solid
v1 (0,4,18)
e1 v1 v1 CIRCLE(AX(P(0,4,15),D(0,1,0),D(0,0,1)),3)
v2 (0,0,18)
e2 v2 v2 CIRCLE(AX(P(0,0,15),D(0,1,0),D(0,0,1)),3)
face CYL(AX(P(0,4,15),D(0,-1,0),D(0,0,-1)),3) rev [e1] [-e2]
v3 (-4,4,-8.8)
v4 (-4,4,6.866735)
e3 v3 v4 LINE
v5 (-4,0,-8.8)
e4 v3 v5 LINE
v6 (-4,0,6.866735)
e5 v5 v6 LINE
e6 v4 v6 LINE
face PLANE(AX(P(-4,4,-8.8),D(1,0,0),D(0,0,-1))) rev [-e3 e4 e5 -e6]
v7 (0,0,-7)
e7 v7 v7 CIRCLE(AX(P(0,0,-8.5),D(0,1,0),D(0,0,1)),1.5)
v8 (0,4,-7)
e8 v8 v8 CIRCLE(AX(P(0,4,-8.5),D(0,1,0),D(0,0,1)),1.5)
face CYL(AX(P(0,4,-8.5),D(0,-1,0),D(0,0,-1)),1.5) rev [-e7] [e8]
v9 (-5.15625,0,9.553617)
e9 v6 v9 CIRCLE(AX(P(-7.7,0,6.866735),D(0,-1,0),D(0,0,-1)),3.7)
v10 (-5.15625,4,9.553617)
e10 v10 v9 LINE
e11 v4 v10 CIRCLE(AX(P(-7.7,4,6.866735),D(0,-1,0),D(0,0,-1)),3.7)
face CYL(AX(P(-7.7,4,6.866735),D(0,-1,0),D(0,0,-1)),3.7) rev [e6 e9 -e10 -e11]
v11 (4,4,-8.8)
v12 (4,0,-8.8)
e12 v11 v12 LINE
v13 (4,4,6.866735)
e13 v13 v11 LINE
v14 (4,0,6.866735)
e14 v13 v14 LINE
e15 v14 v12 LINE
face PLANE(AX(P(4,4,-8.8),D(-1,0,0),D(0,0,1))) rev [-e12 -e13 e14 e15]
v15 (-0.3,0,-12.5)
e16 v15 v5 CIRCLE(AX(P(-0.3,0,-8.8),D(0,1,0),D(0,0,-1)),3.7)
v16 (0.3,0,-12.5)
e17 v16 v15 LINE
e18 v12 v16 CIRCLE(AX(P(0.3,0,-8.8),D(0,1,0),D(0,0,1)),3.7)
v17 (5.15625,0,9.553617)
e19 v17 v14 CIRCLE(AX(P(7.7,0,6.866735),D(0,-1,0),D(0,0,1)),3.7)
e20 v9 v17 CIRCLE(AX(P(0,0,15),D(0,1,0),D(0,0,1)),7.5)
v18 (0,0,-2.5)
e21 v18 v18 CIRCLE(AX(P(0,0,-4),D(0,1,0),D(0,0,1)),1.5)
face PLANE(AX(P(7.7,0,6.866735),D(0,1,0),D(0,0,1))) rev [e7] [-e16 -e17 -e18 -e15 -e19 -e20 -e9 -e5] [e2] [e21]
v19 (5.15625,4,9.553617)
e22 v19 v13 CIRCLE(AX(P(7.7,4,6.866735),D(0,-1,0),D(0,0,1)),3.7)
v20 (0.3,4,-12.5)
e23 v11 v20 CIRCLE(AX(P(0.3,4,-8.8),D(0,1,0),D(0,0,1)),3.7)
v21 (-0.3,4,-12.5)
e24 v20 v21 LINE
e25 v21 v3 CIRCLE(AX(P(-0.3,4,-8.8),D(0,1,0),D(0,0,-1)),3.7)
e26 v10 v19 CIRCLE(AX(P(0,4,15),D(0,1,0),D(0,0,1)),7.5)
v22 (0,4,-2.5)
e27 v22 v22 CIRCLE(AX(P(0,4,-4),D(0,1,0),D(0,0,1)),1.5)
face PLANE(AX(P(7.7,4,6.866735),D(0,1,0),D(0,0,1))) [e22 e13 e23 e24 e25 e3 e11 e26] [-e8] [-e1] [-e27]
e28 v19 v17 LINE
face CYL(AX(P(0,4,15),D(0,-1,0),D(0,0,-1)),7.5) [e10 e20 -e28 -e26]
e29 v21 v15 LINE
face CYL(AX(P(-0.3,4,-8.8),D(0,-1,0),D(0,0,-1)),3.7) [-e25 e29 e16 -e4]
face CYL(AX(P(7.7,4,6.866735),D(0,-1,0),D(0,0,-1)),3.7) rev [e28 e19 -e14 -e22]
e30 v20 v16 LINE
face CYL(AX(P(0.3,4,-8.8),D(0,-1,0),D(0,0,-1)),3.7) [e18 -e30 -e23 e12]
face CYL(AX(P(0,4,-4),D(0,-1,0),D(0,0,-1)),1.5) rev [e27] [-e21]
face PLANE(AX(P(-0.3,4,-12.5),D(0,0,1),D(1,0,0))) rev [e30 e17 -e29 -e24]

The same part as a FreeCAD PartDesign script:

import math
import FreeCAD as App
import Part
import Sketcher

V = App.Vector
Q = App.Units.Quantity

doc = App.newDocument("Part")
body = doc.addObject("PartDesign::Body", "Body")

sketch1 = body.newObject("Sketcher::SketchObject", "Sketch")
sketch1.AttachmentSupport = (doc.getObject("XZ_Plane"), [""])
sketch1.MapMode = "FlatFace"
sketch1.addGeometry([
    Part.LineSegment(V(-4, -8.8, 0), V(-4, 6.9, 0)),
    Part.ArcOfCircle(Part.Circle(V(-7.7, 6.9, 0), V(0, 0, 1), 3.7), math.radians(0), math.radians(47)),
    Part.ArcOfCircle(Part.Circle(V(0, 15, 0), V(0, 0, 1), 7.5), math.radians(-47), math.radians(227)),
    Part.ArcOfCircle(Part.Circle(V(7.7, 6.9, 0), V(0, 0, 1), 3.7), math.radians(133), math.radians(180)),
    Part.LineSegment(V(4, 6.9, 0), V(4, -8.8, 0)),
    Part.ArcOfCircle(Part.Circle(V(0.3, -8.8, 0), V(0, 0, 1), 3.7), math.radians(-90), math.radians(0)),
    Part.LineSegment(V(0.3, -12.5, 0), V(-0.3, -12.5, 0)),
    Part.ArcOfCircle(Part.Circle(V(-0.3, -8.8, 0), V(0, 0, 1), 3.7), math.radians(-180), math.radians(-90)),
    Part.Circle(V(0, 15, 0), V(0, 0, 1), 3),
    Part.Circle(V(0, -4, 0), V(0, 0, 1), 1.5),
    Part.Circle(V(0, -8.5, 0), V(0, 0, 1), 1.5),
], False)
sketch1.addConstraint([
    Sketcher.Constraint("Tangent", 0, 2, 1, 1),
    Sketcher.Constraint("Tangent", 1, 2, 2, 2),
    Sketcher.Constraint("Tangent", 2, 1, 3, 1),
    Sketcher.Constraint("Tangent", 3, 2, 4, 1),
    Sketcher.Constraint("Tangent", 4, 2, 5, 2),
    Sketcher.Constraint("Tangent", 5, 1, 6, 1),
    Sketcher.Constraint("Tangent", 6, 2, 7, 2),
    Sketcher.Constraint("Tangent", 7, 1, 0, 1),
    Sketcher.Constraint("Vertical", 0),
    Sketcher.Constraint("Vertical", 4),
    Sketcher.Constraint("Horizontal", 6),
    Sketcher.Constraint("Coincident", 8, 3, 2, 3),
    Sketcher.Constraint("Equal", 1, 3),
    Sketcher.Constraint("Equal", 3, 5),
    Sketcher.Constraint("Equal", 5, 7),
    Sketcher.Constraint("Equal", 9, 10),
    Sketcher.Constraint("Symmetric", 1, 3, 3, 3, -2),
    Sketcher.Constraint("PointOnObject", 9, 3, -2),
    Sketcher.Constraint("PointOnObject", 10, 3, -2),
    Sketcher.Constraint("Diameter", 8, Q("6 mm")),
    Sketcher.Constraint("Diameter", 9, Q("3 mm")),
    Sketcher.Constraint("Radius", 1, Q("3.7 mm")),
    Sketcher.Constraint("Radius", 2, Q("7.5 mm")),
    Sketcher.Constraint("DistanceX", 6, 2, 6, 1, Q("0.6 mm")),
    Sketcher.Constraint("DistanceY", -1, 1, 2, 3, Q("15 mm")),
    Sketcher.Constraint("DistanceY", 9, 3, -1, 1, Q("4 mm")),
    Sketcher.Constraint("DistanceY", 5, 1, 10, 3, Q("4 mm")),
    Sketcher.Constraint("DistanceY", 5, 3, -1, 1, Q("8.8 mm")),
])
pad1 = body.newObject("PartDesign::Pad", "Pad")
pad1.Profile = sketch1
pad1.Length = 4
pad1.Reversed = True

doc.recompute()
